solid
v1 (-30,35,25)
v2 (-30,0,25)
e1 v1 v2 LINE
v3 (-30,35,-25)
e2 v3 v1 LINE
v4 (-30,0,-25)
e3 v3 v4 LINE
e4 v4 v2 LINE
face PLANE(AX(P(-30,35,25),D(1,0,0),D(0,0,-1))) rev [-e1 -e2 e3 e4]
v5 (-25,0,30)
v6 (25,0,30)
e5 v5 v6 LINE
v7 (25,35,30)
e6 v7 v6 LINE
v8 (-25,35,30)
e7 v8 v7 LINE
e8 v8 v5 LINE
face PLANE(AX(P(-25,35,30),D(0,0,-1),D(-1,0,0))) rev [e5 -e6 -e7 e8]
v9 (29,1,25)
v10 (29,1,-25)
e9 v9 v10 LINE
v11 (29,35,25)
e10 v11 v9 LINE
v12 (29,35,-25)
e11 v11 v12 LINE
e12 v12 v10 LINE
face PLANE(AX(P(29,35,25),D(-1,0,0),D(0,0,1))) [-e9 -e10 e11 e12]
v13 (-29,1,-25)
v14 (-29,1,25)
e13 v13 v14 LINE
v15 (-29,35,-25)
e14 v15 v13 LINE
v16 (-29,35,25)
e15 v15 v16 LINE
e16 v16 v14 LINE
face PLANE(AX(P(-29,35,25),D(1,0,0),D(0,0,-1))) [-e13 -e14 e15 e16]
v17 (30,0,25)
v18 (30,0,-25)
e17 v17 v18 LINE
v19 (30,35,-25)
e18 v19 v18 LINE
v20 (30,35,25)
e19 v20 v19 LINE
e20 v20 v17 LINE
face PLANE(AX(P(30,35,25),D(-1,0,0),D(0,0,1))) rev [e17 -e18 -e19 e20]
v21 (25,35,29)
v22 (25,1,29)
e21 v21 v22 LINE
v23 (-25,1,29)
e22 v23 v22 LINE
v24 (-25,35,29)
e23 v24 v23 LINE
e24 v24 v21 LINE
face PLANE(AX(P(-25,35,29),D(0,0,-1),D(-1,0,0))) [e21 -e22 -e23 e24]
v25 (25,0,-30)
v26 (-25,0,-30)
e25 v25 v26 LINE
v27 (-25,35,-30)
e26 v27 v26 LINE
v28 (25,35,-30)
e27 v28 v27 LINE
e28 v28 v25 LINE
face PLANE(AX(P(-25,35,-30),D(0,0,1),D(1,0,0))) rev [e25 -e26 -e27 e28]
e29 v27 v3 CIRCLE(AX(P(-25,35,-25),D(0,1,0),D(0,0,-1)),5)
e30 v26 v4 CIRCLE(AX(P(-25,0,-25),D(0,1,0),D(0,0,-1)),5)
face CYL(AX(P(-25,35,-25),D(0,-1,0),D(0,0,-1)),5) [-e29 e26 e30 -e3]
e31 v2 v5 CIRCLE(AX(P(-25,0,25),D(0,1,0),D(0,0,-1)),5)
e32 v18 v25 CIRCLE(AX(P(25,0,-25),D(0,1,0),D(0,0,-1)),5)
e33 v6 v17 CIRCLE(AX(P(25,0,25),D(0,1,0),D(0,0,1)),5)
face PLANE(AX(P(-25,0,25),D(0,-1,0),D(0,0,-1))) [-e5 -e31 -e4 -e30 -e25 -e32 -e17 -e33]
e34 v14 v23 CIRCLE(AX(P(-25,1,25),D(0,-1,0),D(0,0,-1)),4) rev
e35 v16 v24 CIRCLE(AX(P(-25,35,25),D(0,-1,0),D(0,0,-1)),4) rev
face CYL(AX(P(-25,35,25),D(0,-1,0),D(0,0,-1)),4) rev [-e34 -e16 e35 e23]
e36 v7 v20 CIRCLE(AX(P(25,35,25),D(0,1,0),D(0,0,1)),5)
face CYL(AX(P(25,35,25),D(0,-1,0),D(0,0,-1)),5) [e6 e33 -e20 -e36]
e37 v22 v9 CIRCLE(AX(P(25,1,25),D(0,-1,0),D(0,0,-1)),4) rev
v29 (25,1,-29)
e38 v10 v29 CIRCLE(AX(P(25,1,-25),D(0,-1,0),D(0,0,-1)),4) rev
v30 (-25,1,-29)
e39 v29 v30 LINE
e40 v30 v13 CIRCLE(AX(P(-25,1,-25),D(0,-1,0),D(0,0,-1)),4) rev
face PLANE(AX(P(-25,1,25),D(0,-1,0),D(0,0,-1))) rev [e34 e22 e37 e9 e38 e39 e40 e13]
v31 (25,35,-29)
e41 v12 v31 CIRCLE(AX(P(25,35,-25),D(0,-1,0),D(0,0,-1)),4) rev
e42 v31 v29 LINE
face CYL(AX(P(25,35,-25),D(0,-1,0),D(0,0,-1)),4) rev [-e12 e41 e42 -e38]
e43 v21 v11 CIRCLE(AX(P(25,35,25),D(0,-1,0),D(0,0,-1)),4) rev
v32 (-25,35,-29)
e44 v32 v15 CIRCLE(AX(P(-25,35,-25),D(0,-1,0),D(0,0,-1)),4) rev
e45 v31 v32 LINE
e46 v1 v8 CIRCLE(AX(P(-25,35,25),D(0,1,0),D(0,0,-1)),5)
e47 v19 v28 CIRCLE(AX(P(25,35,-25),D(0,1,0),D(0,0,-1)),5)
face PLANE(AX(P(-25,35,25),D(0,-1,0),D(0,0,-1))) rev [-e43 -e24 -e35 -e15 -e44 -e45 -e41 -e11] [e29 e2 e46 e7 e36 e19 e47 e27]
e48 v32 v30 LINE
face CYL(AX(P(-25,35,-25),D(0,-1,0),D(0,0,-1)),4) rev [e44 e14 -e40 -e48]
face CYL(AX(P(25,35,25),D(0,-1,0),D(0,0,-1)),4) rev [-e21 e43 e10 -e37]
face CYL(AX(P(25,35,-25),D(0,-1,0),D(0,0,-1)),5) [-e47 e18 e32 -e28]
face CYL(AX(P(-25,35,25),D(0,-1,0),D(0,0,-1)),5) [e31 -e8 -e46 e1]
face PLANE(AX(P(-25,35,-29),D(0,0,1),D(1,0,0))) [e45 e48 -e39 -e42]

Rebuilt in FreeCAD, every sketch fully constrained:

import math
import FreeCAD as App
import Part
import Sketcher

V = App.Vector
Q = App.Units.Quantity


def faces_at(feature, points):
    """Names of the faces that lie closest to the given points."""
    faces = feature.Shape.Faces
    near = lambda p: min(range(len(faces)), key=lambda i: faces[i].distToShape(Part.Vertex(*p))[0])
    return sorted({f"Face{near(p) + 1}" for p in points})

doc = App.newDocument("Part")
body = doc.addObject("PartDesign::Body", "Body")

sketch1 = body.newObject("Sketcher::SketchObject", "Sketch")
sketch1.AttachmentSupport = (doc.getObject("XZ_Plane"), [""])
sketch1.MapMode = "FlatFace"
sketch1.addGeometry(Part.LineSegment(V(-25, 30, 0), V(25, 30, 0)), False)
sketch1.addGeometry(Part.ArcOfCircle(Part.Circle(V(25, 25, 0), V(0, 0, 1), 5), math.radians(0), math.radians(90)), False)
sketch1.addGeometry(Part.LineSegment(V(30, 25, 0), V(30, -25, 0)), False)
sketch1.addGeometry(Part.ArcOfCircle(Part.Circle(V(25, -25, 0), V(0, 0, 1), 5), math.radians(-90), math.radians(0)), False)
sketch1.addGeometry(Part.LineSegment(V(25, -30, 0), V(-25, -30, 0)), False)
sketch1.addGeometry(Part.ArcOfCircle(Part.Circle(V(-25, -25, 0), V(0, 0, 1), 5), math.radians(180), math.radians(270)), False)
sketch1.addGeometry(Part.LineSegment(V(-30, -25, 0), V(-30, 25, 0)), False)
sketch1.addGeometry(Part.ArcOfCircle(Part.Circle(V(-25, 25, 0), V(0, 0, 1), 5), math.radians(90), math.radians(180)), False)
sketch1.addConstraint(Sketcher.Constraint("Tangent", 0, 2, 1, 2))
sketch1.addConstraint(Sketcher.Constraint("Tangent", 1, 1, 2, 1))
sketch1.addConstraint(Sketcher.Constraint("Tangent", 2, 2, 3, 2))
sketch1.addConstraint(Sketcher.Constraint("Tangent", 3, 1, 4, 1))
sketch1.addConstraint(Sketcher.Constraint("Tangent", 4, 2, 5, 2))
sketch1.addConstraint(Sketcher.Constraint("Tangent", 5, 1, 6, 1))
sketch1.addConstraint(Sketcher.Constraint("Tangent", 6, 2, 7, 2))
sketch1.addConstraint(Sketcher.Constraint("Tangent", 7, 1, 0, 1))
sketch1.addConstraint(Sketcher.Constraint("Horizontal", 0))
sketch1.addConstraint(Sketcher.Constraint("Vertical", 2))
sketch1.addConstraint(Sketcher.Constraint("Horizontal", 4))
sketch1.addConstraint(Sketcher.Constraint("Vertical", 6))
sketch1.addConstraint(Sketcher.Constraint("Equal", 1, 3))
sketch1.addConstraint(Sketcher.Constraint("Equal", 3, 5))
sketch1.addConstraint(Sketcher.Constraint("Equal", 5, 7))
sketch1.addConstraint(Sketcher.Constraint("Symmetric", 1, 3, 5, 3, -1, 1))
sketch1.addConstraint(Sketcher.Constraint("Equal", 4, 2))
sketch1.addConstraint(Sketcher.Constraint("Radius", 1, Q("5 mm")))
sketch1.addConstraint(Sketcher.Constraint("DistanceX", 0, 1, 0, 2, Q("50 mm")))
pad1 = body.newObject("PartDesign::Pad", "Pad")
pad1.Profile = sketch1
pad1.Length = 35
pad1.Reversed = True
doc.recompute()

thickness = body.newObject("PartDesign::Thickness", "Thickness")
thickness.Base = (pad1, faces_at(pad1, [(0, 35, 0)]))
thickness.Value = 1
thickness.Reversed = True
thickness.Join = "Intersection"

doc.recompute()
